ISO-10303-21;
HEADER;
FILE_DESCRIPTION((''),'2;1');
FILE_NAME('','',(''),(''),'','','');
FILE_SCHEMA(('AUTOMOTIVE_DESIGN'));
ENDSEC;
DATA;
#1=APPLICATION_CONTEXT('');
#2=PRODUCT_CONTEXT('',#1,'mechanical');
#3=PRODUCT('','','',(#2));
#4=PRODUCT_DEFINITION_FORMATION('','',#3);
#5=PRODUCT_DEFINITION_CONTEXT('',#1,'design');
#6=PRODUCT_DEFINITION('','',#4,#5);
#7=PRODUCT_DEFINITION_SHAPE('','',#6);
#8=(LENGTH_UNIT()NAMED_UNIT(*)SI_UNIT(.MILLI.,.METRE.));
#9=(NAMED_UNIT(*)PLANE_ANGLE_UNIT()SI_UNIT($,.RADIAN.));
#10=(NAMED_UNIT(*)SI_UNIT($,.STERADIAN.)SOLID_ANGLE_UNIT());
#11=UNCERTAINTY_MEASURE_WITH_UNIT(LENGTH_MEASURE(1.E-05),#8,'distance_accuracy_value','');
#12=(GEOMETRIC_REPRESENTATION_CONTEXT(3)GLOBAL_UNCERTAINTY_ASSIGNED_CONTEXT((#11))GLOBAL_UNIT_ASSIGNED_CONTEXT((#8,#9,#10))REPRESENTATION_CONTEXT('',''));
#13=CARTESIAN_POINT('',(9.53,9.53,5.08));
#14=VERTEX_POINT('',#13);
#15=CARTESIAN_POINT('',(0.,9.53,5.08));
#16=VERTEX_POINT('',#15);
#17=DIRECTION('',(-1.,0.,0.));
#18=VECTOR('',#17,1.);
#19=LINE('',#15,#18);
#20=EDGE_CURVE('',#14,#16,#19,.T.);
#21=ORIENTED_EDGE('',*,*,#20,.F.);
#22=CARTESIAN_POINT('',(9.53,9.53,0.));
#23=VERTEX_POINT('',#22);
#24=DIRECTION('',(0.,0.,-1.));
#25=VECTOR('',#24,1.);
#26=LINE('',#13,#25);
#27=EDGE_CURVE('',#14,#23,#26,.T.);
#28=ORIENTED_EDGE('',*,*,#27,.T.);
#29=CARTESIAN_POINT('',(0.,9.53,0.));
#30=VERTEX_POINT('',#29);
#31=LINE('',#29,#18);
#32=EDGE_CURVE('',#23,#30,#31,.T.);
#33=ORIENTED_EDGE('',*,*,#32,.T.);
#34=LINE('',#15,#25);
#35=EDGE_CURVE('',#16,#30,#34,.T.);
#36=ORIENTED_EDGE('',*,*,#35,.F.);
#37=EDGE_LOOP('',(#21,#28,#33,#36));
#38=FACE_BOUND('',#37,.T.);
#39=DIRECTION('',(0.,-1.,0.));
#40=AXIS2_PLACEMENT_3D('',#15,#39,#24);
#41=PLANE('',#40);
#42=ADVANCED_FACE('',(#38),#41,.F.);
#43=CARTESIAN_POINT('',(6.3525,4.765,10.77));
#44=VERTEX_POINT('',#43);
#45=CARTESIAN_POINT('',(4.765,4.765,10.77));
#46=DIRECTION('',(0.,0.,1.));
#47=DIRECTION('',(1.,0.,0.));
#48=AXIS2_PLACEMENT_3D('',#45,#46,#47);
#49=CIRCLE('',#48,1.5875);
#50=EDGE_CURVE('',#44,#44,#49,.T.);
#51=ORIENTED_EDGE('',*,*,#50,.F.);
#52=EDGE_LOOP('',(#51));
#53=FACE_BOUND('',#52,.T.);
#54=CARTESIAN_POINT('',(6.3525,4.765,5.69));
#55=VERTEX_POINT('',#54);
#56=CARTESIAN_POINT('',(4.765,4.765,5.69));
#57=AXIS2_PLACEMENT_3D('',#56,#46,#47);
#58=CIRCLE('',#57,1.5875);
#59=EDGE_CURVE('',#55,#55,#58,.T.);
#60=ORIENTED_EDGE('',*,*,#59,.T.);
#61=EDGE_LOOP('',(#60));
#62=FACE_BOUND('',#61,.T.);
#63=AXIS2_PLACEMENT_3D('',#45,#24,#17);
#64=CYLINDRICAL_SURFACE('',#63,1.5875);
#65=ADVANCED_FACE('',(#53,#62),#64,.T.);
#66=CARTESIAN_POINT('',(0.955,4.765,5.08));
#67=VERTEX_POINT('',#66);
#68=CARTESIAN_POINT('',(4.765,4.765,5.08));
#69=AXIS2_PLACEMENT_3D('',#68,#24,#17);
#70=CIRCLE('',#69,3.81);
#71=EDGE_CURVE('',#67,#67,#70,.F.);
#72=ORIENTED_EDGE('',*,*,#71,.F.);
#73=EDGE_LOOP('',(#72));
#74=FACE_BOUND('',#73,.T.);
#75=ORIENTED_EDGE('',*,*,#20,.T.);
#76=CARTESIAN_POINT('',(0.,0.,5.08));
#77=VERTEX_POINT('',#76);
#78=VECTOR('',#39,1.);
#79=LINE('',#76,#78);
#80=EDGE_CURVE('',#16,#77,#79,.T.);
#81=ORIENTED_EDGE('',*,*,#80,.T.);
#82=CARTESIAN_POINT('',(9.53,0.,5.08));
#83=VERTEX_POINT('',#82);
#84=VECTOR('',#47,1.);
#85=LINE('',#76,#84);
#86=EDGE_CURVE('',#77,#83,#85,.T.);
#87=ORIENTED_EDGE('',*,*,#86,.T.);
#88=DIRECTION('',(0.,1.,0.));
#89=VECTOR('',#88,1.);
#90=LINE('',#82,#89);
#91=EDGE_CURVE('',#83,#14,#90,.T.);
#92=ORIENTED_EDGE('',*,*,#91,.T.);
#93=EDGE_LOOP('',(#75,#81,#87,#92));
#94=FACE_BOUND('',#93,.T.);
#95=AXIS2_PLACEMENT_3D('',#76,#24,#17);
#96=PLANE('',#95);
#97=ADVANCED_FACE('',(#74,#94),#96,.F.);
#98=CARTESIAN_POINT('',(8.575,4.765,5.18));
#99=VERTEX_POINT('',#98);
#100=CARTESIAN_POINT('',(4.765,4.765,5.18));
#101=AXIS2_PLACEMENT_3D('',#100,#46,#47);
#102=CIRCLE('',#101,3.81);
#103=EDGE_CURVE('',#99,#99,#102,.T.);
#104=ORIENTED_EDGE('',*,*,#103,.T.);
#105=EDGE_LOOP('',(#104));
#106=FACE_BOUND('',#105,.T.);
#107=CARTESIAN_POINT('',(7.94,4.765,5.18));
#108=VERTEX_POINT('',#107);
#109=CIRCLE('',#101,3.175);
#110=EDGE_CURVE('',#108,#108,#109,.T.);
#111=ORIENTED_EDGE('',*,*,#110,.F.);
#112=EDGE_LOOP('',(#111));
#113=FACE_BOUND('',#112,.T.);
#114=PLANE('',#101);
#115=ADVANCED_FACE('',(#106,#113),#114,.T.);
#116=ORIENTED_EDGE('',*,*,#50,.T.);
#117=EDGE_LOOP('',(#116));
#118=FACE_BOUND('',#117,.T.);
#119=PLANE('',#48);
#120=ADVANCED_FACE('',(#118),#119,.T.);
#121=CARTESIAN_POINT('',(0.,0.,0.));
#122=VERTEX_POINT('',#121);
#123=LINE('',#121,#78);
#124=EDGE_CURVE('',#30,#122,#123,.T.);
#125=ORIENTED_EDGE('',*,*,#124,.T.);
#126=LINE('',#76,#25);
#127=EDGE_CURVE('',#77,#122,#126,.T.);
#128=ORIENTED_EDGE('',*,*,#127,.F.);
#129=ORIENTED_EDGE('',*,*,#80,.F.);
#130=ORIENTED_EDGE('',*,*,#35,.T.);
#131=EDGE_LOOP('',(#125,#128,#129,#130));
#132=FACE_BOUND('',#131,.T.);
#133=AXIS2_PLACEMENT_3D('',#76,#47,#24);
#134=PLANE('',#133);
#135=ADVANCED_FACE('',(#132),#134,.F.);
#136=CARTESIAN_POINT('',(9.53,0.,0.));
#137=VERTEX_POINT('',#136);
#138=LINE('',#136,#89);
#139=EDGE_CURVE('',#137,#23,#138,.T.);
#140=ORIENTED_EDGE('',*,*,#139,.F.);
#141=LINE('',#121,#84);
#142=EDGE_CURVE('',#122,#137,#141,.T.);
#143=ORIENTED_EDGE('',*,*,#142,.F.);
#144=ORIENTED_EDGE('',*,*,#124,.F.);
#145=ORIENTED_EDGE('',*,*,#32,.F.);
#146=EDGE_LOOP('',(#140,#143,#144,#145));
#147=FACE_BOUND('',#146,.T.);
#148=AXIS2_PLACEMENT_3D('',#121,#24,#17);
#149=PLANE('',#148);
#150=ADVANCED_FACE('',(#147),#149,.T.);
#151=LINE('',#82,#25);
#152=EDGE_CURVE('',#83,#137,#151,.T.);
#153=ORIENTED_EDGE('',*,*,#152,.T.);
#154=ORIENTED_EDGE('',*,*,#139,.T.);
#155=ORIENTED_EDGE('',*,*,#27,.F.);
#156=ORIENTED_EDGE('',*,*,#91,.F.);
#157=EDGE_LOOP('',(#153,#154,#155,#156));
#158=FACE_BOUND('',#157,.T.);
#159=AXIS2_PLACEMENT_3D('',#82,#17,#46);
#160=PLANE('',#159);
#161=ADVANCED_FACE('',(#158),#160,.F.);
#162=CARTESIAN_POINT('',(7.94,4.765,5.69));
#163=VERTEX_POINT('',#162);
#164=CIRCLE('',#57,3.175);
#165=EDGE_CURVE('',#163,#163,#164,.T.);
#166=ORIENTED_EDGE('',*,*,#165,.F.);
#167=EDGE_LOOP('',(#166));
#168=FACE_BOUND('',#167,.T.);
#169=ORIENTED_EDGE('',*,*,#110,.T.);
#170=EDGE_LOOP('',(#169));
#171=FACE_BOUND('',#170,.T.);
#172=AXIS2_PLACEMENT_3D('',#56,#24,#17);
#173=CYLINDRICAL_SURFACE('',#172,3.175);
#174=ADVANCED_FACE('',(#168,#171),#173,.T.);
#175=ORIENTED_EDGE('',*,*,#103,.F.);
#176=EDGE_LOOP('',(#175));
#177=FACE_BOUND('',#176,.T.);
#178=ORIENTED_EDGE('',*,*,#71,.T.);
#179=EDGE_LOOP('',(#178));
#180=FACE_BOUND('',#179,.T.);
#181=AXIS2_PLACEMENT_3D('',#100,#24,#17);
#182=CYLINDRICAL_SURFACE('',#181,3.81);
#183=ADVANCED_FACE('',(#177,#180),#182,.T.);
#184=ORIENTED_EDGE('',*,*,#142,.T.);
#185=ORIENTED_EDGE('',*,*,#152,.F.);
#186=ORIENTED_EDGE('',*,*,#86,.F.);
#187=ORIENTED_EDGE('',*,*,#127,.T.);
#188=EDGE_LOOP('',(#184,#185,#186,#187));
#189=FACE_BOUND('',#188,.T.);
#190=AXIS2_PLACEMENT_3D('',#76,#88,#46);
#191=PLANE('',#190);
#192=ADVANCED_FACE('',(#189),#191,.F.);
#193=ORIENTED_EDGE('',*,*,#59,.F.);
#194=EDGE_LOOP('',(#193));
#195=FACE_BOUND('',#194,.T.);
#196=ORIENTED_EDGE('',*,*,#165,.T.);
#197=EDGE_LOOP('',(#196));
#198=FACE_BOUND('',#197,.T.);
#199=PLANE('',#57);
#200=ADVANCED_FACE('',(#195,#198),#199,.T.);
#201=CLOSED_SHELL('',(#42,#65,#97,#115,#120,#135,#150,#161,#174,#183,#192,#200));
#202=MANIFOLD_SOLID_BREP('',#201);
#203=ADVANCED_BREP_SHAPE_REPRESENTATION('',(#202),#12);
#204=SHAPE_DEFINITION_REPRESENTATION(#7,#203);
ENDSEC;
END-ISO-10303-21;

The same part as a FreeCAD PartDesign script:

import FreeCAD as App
import Part
import Sketcher

V = App.Vector
Q = App.Units.Quantity

doc = App.newDocument("Part")
body = doc.addObject("PartDesign::Body", "Body")

sketch1 = doc.addObject("Sketcher::SketchObject", "Sketch")
body.addObject(sketch1)
sketch1.AttachmentSupport = (doc.XY_Plane, [""])
sketch1.MapMode = "FlatFace"
sketch1.addGeometry([
    Part.LineSegment(V(0, 10, 0), V(0, 0, 0)),
    Part.LineSegment(V(0, 0, 0), V(10, 0, 0)),
    Part.LineSegment(V(10, 0, 0), V(10, 10, 0)),
    Part.LineSegment(V(10, 10, 0), V(0, 10, 0)),
], False)
sketch1.addConstraint([
    Sketcher.Constraint("Coincident", 0, 2, 1, 1),
    Sketcher.Constraint("Coincident", 1, 2, 2, 1),
    Sketcher.Constraint("Coincident", 2, 2, 3, 1),
    Sketcher.Constraint("Coincident", 3, 2, 0, 1),
    Sketcher.Constraint("Vertical", 0),
    Sketcher.Constraint("Horizontal", 1),
    Sketcher.Constraint("Vertical", 2),
    Sketcher.Constraint("Horizontal", 3),
    Sketcher.Constraint("Coincident", 0, 2, -1, 1),
    Sketcher.Constraint("Equal", 3, 0),
    Sketcher.Constraint("DistanceX", 1, 1, 1, 2, 9.53),
])
pad1 = doc.addObject("PartDesign::Pad", "Pad")
body.addObject(pad1)
pad1.Profile = sketch1
pad1.Length = Q("0.2 in")

sketch2 = doc.addObject("Sketcher::SketchObject", "Sketch001")
body.addObject(sketch2)
sketch2.AttachmentSupport = (doc.XY_Plane, [""])
sketch2.MapMode = "FlatFace"
sketch2.AttachmentOffset = App.Placement(V(0, 0, 0.2 * 25.4), App.Rotation())
sketch2.addGeometry(Part.Circle(V(4.8, 4.8, 0), V(0, 0, 1), 3.8), False)
sketch2.addConstraint([
    Sketcher.Constraint("Diameter", 0, Q("0.3 in")),
    Sketcher.Constraint("DistanceX", -1, 1, 0, 3, 4.765),
    Sketcher.Constraint("DistanceY", -1, 1, 0, 3, 4.765),
])
pad2 = doc.addObject("PartDesign::Pad", "Pad001")
body.addObject(pad2)
pad2.Profile = sketch2
pad2.Length = 0.1

sketch3 = doc.addObject("Sketcher::SketchObject", "Sketch002")
body.addObject(sketch3)
sketch3.AttachmentSupport = (doc.XY_Plane, [""])
sketch3.MapMode = "FlatFace"
sketch3.AttachmentOffset = App.Placement(V(0, 0, 5.18), App.Rotation())
sketch3.addGeometry(Part.Circle(V(4.8, 4.8, 0), V(0, 0, 1), 3.2), False)
sketch3.addConstraint([
    Sketcher.Constraint("Diameter", 0, Q("0.25 in")),
    Sketcher.Constraint("DistanceX", -1, 1, 0, 3, 4.765),
    Sketcher.Constraint("DistanceY", -1, 1, 0, 3, 4.765),
])
pad3 = doc.addObject("PartDesign::Pad", "Pad002")
body.addObject(pad3)
pad3.Profile = sketch3
pad3.Length = 0.51

sketch4 = doc.addObject("Sketcher::SketchObject", "Sketch003")
body.addObject(sketch4)
sketch4.AttachmentSupport = (doc.XY_Plane, [""])
sketch4.MapMode = "FlatFace"
sketch4.AttachmentOffset = App.Placement(V(0, 0, 5.69), App.Rotation())
sketch4.addGeometry(Part.Circle(V(4.8, 4.8, 0), V(0, 0, 1), 1.6), False)
sketch4.addConstraint([
    Sketcher.Constraint("Diameter", 0, Q("0.125 in")),
    Sketcher.Constraint("DistanceX", -1, 1, 0, 3, 4.765),
    Sketcher.Constraint("DistanceY", -1, 1, 0, 3, 4.765),
])
pad4 = doc.addObject("PartDesign::Pad", "Pad003")
body.addObject(pad4)
pad4.Profile = sketch4
pad4.Length = Q("0.2 in")

doc.recompute()
